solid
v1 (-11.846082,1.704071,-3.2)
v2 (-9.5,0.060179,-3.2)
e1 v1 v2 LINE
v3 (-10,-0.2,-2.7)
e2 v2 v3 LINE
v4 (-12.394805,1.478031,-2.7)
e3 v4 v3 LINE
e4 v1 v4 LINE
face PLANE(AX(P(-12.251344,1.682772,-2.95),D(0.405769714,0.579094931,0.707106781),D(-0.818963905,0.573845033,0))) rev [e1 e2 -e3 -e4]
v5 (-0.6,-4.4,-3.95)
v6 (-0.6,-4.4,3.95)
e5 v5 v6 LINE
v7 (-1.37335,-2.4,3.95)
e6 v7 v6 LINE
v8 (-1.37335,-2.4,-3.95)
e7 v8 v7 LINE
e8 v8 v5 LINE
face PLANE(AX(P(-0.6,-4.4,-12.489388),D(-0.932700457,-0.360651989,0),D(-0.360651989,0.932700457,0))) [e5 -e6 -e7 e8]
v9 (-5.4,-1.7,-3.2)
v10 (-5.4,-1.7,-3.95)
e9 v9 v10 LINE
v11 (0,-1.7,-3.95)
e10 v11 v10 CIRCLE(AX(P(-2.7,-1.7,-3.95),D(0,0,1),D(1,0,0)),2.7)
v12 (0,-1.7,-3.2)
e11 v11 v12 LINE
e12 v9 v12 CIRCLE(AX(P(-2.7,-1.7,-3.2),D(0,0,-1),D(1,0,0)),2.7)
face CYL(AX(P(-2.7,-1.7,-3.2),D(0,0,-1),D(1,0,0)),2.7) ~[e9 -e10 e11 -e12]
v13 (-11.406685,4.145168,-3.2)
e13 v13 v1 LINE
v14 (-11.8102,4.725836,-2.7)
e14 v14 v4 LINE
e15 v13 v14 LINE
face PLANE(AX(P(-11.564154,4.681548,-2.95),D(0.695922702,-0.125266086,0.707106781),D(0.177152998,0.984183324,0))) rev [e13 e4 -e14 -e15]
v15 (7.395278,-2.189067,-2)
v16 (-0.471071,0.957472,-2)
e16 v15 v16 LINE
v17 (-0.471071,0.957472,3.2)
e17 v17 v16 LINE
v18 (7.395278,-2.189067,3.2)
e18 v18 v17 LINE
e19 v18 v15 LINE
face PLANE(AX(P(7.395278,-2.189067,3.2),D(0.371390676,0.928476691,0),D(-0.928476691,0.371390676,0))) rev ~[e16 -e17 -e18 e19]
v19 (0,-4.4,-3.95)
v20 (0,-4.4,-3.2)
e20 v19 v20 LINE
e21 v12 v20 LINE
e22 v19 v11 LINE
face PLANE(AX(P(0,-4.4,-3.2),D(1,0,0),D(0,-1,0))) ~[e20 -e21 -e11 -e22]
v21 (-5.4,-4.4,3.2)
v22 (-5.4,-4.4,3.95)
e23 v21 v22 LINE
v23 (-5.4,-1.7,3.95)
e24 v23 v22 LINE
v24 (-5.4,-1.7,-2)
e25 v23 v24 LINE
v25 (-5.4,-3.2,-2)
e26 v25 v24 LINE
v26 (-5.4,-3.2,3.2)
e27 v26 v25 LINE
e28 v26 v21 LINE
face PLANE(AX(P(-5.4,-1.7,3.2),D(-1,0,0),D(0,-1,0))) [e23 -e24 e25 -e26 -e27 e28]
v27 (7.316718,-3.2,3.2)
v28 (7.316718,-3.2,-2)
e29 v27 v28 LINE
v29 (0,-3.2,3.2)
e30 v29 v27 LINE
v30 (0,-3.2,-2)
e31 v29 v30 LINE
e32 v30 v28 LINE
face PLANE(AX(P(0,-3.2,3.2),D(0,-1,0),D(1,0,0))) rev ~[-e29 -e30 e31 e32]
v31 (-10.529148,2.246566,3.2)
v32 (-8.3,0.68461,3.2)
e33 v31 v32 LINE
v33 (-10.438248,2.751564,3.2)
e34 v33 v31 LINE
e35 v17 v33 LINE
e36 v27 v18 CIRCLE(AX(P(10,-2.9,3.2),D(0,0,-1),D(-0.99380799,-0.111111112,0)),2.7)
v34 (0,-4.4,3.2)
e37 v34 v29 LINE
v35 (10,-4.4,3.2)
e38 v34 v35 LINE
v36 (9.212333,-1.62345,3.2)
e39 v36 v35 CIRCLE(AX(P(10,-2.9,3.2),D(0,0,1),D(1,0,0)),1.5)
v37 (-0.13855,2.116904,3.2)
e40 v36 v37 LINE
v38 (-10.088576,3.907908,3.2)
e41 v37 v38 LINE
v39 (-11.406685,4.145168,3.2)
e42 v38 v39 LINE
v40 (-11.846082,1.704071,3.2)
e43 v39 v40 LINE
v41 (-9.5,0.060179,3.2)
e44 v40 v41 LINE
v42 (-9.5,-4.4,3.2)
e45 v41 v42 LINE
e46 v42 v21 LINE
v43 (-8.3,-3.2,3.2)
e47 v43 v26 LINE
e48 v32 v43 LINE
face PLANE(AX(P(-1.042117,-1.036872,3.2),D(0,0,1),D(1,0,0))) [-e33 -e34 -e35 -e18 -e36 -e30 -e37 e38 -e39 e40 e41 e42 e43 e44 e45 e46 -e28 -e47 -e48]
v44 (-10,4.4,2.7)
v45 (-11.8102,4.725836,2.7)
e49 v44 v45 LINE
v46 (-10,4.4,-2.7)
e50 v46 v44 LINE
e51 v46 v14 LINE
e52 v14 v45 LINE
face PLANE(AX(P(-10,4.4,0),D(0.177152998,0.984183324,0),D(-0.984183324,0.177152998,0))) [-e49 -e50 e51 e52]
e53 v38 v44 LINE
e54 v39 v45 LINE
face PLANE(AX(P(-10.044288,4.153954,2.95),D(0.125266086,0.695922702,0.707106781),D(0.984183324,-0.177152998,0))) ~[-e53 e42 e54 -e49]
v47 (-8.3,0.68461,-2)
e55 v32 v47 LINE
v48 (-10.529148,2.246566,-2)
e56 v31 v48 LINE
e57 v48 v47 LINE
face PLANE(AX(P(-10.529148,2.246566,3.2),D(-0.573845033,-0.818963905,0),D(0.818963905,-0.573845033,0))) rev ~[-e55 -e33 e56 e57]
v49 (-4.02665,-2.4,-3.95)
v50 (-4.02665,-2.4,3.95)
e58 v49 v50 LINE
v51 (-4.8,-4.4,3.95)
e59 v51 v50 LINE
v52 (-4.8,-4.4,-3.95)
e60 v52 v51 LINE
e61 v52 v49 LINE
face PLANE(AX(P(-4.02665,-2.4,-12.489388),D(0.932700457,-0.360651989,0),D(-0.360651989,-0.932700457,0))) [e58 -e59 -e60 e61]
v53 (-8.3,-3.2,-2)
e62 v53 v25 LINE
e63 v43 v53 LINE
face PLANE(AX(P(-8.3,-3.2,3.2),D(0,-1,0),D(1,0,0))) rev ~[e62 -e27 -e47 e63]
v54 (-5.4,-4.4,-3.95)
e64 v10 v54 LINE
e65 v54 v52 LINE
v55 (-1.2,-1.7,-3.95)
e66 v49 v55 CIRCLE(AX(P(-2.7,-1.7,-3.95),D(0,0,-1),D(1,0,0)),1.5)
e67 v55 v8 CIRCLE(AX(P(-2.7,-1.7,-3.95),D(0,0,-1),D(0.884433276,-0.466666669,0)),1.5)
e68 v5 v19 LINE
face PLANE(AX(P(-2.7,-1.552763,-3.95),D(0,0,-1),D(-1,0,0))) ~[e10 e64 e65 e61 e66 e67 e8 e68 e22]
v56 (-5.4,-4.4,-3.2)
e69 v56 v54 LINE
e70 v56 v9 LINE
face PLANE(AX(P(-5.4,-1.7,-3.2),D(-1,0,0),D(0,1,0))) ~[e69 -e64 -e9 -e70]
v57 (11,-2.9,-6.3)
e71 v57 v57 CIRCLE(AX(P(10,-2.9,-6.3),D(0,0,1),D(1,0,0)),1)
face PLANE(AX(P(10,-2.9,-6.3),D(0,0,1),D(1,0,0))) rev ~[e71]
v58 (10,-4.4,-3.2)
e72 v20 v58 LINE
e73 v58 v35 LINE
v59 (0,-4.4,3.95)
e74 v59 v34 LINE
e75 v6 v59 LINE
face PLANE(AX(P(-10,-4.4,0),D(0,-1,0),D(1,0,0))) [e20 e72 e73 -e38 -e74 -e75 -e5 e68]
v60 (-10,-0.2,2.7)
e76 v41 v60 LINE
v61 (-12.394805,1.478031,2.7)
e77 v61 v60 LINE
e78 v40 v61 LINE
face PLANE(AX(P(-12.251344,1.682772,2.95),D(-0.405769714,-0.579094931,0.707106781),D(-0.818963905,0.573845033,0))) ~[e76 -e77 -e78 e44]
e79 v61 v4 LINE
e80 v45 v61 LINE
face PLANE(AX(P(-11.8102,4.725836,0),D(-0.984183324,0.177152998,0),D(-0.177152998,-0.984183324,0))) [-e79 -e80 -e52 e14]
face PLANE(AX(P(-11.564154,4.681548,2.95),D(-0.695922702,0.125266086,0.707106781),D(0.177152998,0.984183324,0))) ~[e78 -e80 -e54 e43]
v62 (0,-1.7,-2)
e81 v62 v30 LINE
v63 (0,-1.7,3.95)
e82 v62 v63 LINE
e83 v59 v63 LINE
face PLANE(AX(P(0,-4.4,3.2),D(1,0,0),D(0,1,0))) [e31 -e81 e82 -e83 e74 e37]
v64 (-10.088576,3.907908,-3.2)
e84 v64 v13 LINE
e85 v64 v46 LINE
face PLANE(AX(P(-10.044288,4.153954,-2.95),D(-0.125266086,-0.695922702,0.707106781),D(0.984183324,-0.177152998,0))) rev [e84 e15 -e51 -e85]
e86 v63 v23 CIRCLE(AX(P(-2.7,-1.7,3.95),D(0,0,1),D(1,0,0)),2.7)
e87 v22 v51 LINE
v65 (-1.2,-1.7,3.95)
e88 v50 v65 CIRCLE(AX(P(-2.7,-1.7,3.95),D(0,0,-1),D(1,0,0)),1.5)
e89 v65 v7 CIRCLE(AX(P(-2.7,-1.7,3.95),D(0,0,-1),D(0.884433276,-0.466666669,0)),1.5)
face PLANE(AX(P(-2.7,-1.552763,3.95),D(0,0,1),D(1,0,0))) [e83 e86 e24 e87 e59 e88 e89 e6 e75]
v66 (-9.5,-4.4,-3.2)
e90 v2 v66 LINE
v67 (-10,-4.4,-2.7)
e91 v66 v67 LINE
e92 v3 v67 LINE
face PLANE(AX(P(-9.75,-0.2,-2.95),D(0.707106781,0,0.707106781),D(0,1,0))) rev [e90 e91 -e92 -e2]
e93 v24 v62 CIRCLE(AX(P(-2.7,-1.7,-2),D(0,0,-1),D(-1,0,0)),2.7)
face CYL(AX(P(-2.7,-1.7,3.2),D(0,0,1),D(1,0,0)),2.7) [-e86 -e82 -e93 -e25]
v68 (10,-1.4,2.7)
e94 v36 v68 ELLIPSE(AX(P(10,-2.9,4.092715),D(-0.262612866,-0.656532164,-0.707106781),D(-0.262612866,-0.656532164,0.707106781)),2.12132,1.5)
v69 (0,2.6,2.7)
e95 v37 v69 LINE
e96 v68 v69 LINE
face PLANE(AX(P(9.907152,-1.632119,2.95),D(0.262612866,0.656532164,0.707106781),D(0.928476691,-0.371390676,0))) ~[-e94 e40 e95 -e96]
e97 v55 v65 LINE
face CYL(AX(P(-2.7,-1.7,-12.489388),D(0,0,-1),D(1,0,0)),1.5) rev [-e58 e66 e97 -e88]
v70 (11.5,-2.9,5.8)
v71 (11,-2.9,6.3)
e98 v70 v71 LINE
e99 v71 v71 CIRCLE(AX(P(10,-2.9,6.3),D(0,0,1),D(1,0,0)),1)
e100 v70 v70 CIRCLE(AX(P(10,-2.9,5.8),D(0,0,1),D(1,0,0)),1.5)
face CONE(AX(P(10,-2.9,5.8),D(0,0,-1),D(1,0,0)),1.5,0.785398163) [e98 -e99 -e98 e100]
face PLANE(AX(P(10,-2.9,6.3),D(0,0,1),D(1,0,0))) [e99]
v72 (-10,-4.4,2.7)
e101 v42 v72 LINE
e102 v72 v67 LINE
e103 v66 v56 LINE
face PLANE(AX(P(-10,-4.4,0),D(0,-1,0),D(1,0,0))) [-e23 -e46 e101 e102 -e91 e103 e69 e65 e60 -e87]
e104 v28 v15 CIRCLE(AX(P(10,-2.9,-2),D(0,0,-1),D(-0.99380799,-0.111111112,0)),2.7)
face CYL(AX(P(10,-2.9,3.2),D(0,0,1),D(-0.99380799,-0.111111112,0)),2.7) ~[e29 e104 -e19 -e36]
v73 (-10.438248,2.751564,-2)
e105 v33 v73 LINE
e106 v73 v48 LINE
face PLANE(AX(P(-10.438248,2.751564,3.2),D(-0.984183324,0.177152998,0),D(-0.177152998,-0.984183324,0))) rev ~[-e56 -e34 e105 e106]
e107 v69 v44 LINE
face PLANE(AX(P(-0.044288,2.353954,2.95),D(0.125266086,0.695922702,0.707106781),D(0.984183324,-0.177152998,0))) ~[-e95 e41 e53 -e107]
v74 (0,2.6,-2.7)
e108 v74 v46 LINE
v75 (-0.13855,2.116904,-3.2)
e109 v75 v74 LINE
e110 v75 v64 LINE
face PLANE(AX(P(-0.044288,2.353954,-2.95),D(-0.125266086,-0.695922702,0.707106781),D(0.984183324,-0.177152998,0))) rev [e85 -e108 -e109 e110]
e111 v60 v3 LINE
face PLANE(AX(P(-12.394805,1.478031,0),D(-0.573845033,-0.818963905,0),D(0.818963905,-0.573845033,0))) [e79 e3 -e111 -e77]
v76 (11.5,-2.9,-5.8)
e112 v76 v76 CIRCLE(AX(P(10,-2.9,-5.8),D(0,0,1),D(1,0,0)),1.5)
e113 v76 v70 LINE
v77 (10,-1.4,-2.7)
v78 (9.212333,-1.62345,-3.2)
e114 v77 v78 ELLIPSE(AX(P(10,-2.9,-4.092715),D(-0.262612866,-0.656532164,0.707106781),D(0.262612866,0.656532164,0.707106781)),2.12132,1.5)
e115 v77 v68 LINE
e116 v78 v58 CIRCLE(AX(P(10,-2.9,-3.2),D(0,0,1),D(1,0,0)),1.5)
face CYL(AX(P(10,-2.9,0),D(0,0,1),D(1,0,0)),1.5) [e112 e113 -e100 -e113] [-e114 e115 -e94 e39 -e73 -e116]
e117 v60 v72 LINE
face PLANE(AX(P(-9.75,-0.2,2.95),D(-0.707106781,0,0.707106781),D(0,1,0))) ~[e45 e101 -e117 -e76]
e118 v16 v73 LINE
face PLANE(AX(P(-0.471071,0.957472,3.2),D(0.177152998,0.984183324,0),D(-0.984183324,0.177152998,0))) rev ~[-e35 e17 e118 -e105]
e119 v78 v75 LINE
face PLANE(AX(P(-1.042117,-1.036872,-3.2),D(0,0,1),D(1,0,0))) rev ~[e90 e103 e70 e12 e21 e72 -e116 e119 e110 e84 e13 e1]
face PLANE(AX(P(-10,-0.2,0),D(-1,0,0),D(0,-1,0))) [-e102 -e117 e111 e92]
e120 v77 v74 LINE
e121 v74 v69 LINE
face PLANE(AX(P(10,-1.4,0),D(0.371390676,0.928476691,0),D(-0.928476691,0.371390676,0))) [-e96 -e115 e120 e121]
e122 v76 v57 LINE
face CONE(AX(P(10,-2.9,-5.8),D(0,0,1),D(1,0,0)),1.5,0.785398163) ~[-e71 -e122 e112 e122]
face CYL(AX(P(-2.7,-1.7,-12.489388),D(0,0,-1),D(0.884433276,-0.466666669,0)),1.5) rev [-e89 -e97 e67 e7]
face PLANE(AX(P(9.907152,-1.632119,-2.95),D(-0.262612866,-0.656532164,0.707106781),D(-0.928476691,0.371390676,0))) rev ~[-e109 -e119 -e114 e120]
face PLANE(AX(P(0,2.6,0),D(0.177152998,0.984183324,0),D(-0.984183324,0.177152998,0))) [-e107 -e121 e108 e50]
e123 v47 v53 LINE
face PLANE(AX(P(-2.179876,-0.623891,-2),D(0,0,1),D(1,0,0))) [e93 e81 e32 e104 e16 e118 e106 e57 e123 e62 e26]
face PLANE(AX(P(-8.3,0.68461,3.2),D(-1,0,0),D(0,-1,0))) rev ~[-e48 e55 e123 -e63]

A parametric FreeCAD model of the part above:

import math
import FreeCAD as App
import Part
import Sketcher
Q = App.Units.Quantity


def edges_at(feature, points):
    """Names of the edges that pass closest to the given points."""
    edges = feature.Shape.Edges
    near = lambda p: min(range(len(edges)), key=lambda i: edges[i].distToShape(Part.Vertex(*p))[0])
    return sorted({f"Edge{near(p) + 1}" for p in points})


def add_polygon(sketch, points):
    """Adds a closed chain of lines whose ends are joined by coincident constraints."""
    first, n = sketch.GeometryCount, len(points)
    for a, b in zip(points, points[1:] + points[:1]):
        sketch.addGeometry(Part.LineSegment(App.Vector(*a, 0), App.Vector(*b, 0)), False)
    for i in range(n):
        sketch.addConstraint(Sketcher.Constraint("Coincident", first + i, 2, first + (i + 1) % n, 1))

doc = App.newDocument("Part")
body = doc.addObject("PartDesign::Body", "Body")

sketch1 = body.newObject("Sketcher::SketchObject", "Sketch")
sketch1.AttachmentSupport = (doc.getObject("XY_Plane"), [""])
sketch1.MapMode = "FlatFace"
add_polygon(sketch1, [(-10, -4.4), (10, -4.4), (10, -1.4), (0, 2.6), (-10, 4.4), (-11.8102, 4.725836), (-12.394805, 1.478031), (-10, -0.2)])
sketch1.addConstraint([
    Sketcher.Constraint("Horizontal", 0),
    Sketcher.Constraint("Vertical", 1),
    Sketcher.Constraint("Vertical", 7),
    Sketcher.Constraint("Symmetric", 0, 2, 3, 2, -1, 1),
    Sketcher.Constraint("PointOnObject", 2, 2, -2),
    Sketcher.Constraint("Parallel", 3, 4),
    Sketcher.Constraint("Perpendicular", 4, 5),
    Sketcher.Constraint("Vertical", 3, 2, 6, 2),
    Sketcher.Constraint("DistanceX", 0, 1, 0, 2, Q("20 mm")),
    Sketcher.Constraint("DistanceY", 1, 1, 1, 2, Q("3 mm")),
    Sketcher.Constraint("DistanceY", 7, 2, 7, 1, Q("4.2 mm")),
    Sketcher.Constraint("DistanceY", 1, 2, 2, 2, Q("4 mm")),
    Sketcher.Constraint("Distance", 5, Q("3.3 mm")),
    Sketcher.Constraint("DistanceY", 0, 2, -1, 1, Q("4.4 mm")),
    Sketcher.Constraint("DistanceX", 4, 2, -1, 1, Q("11.8102 mm")),
])
pad1 = body.newObject("PartDesign::Pad", "Pad")
pad1.Profile = sketch1
pad1.Length = 6.4
pad1.Midplane = True

sketch2 = body.newObject("Sketcher::SketchObject", "Sketch001")
sketch2.AttachmentSupport = (doc.getObject("XY_Plane"), [""])
sketch2.MapMode = "FlatFace"
sketch2.AttachmentOffset = App.Placement(App.Vector(0, 0, 3.2), App.Rotation())
sketch2.addGeometry([
    Part.ArcOfCircle(Part.Circle(App.Vector(-2.7, -1.7, 0), App.Vector(0, 0, 1), 2.7), math.radians(0), math.radians(180)),
    Part.LineSegment(App.Vector(-5.4, -1.7, 0), App.Vector(-5.4, -4.4, 0)),
    Part.LineSegment(App.Vector(-5.4, -4.4, 0), App.Vector(0, -4.4, 0)),
    Part.LineSegment(App.Vector(0, -4.4, 0), App.Vector(0, -1.7, 0)),
], False)
sketch2.addConstraint([
    Sketcher.Constraint("Tangent", 0, 2, 1, 1),
    Sketcher.Constraint("Coincident", 1, 2, 2, 1),
    Sketcher.Constraint("Coincident", 2, 2, 3, 1),
    Sketcher.Constraint("Tangent", 3, 2, 0, 1),
    Sketcher.Constraint("Vertical", 1),
    Sketcher.Constraint("Horizontal", 2),
    Sketcher.Constraint("Vertical", 3),
    Sketcher.Constraint("PointOnObject", 2, 2, -2),
    Sketcher.Constraint("Radius", 0, Q("2.7 mm")),
    Sketcher.Constraint("DistanceY", 1, 2, 1, 1, Q("2.7 mm")),
    Sketcher.Constraint("DistanceY", 0, 3, -1, 1, Q("1.7 mm")),
])
pad2 = body.newObject("PartDesign::Pad", "Pad001")
pad2.Profile = sketch2
pad2.Length = 1.5
pad2.Midplane = True
doc.recompute()

mirrored = body.newObject("PartDesign::Mirrored", "Mirrored")
mirrored.Originals = [pad2]
mirrored.MirrorPlane = (doc.getObject("XY_Plane"), [""])
body.Tip = mirrored

sketch3 = body.newObject("Sketcher::SketchObject", "Sketch002")
sketch3.AttachmentSupport = (doc.getObject("XY_Plane"), [""])
sketch3.MapMode = "FlatFace"
sketch3.AttachmentOffset = App.Placement(App.Vector(0, 0, 3.95), App.Rotation())
sketch3.addGeometry([
    Part.ArcOfCircle(Part.Circle(App.Vector(-2.7, -1.7, 0), App.Vector(0, 0, 1), 1.5), math.radians(0), math.radians(207.818139)),
    Part.LineSegment(App.Vector(-4.02665, -2.4, 0), App.Vector(-4.8, -4.4, 0)),
    Part.LineSegment(App.Vector(-4.8, -4.4, 0), App.Vector(-0.6, -4.4, 0)),
    Part.LineSegment(App.Vector(-0.6, -4.4, 0), App.Vector(-1.37335, -2.4, 0)),
    Part.ArcOfCircle(Part.Circle(App.Vector(-2.7, -1.7, 0), App.Vector(0, 0, 1), 1.5), math.radians(-27.818139), math.radians(0)),
], False)
sketch3.addConstraint([
    Sketcher.Constraint("Coincident", 0, 2, 1, 1),
    Sketcher.Constraint("Coincident", 1, 2, 2, 1),
    Sketcher.Constraint("Coincident", 2, 2, 3, 1),
    Sketcher.Constraint("Coincident", 3, 2, 4, 1),
    Sketcher.Constraint("Tangent", 4, 2, 0, 1),
    Sketcher.Constraint("Horizontal", 2),
    Sketcher.Constraint("Equal", 0, 4),
    Sketcher.Constraint("Horizontal", 0, 2, 3, 2),
    Sketcher.Constraint("Horizontal", 0, 3, 4, 2),
    Sketcher.Constraint("Equal", 1, 3),
    Sketcher.Constraint("Radius", 0, Q("1.5 mm")),
    Sketcher.Constraint("DistanceX", 2, 1, 2, 2, Q("4.2 mm")),
    Sketcher.Constraint("DistanceY", 1, 2, 0, 2, Q("2 mm")),
    Sketcher.Constraint("DistanceX", 0, 3, -1, 1, Q("2.7 mm")),
    Sketcher.Constraint("DistanceY", 0, 3, -1, 1, Q("1.7 mm")),
    Sketcher.Constraint("DistanceY", 0, 2, -1, 1, Q("2.4 mm")),
])
pocket1 = body.newObject("PartDesign::Pocket", "Pocket")
pocket1.Profile = sketch3
pocket1.Type = "ThroughAll"
pocket1.Midplane = True

sketch4 = body.newObject("Sketcher::SketchObject", "Sketch003")
sketch4.AttachmentSupport = (doc.getObject("XY_Plane"), [""])
sketch4.MapMode = "FlatFace"
sketch4.addGeometry(Part.Circle(App.Vector(10, -2.9, 0), App.Vector(0, 0, 1), 1.5), False)
sketch4.addConstraint([
    Sketcher.Constraint("Diameter", 0, Q("3 mm")),
    Sketcher.Constraint("DistanceX", -1, 1, 0, 3, Q("10 mm")),
    Sketcher.Constraint("DistanceY", 0, 3, -1, 1, Q("2.9 mm")),
])
pad3 = body.newObject("PartDesign::Pad", "Pad002")
pad3.Profile = sketch4
pad3.Length = 12.6
pad3.Midplane = True
doc.recompute()

chamfer = body.newObject("PartDesign::Chamfer", "Chamfer")
chamfer.Base = (pad3, edges_at(pad3, [(8.5, -2.9, -6.3), (8.5, -2.9, 6.3)]))
chamfer.Size = 0.5
doc.recompute()

chamfer2 = body.newObject("PartDesign::Chamfer", "Chamfer001")
chamfer2.Base = (chamfer, edges_at(chamfer, [
    (-5, 3.5, 3.2),
    (-11.197, 0.639, -3.2),
    (-12.103, 3.102, -3.2),
    (-5, 3.5, -3.2),
    (5, 0.6, -3.2),
    (-12.103, 3.102, 3.2),
    (-11.197, 0.639, 3.2),
    (-10, -2.3, 3.2),
    (5, 0.6, 3.2),
    (-10, -2.3, -3.2),
]))
chamfer2.Size = 0.5

sketch5 = body.newObject("Sketcher::SketchObject", "Sketch004")
sketch5.AttachmentSupport = (doc.getObject("XY_Plane"), [""])
sketch5.MapMode = "FlatFace"
sketch5.AttachmentOffset = App.Placement(App.Vector(0, 0, 3.2), App.Rotation())
sketch5.addGeometry([
    Part.LineSegment(App.Vector(-10.438248, 2.751564, 0), App.Vector(-10.529148, 2.246566, 0)),
    Part.LineSegment(App.Vector(-10.529148, 2.246566, 0), App.Vector(-8.3, 0.68461, 0)),
    Part.LineSegment(App.Vector(-8.3, 0.68461, 0), App.Vector(-8.3, -3.2, 0)),
    Part.LineSegment(App.Vector(-8.3, -3.2, 0), App.Vector(-5.4, -3.2, 0)),
    Part.LineSegment(App.Vector(-5.4, -3.2, 0), App.Vector(-5.4, -1.7, 0)),
    Part.ArcOfCircle(Part.Circle(App.Vector(-2.7, -1.7, 0), App.Vector(0, 0, 1), 2.7), math.radians(0), math.radians(180)),
    Part.LineSegment(App.Vector(0, -1.7, 0), App.Vector(0, -3.2, 0)),
    Part.LineSegment(App.Vector(0, -3.2, 0), App.Vector(7.316718, -3.2, 0)),
    Part.ArcOfCircle(Part.Circle(App.Vector(10, -2.9, 0), App.Vector(0, 0, 1), 2.7), math.radians(164.733539), math.radians(186.37937)),
    Part.LineSegment(App.Vector(7.395278, -2.189067, 0), App.Vector(-0.471071, 0.957472, 0)),
    Part.LineSegment(App.Vector(-0.471071, 0.957472, 0), App.Vector(-10.438248, 2.751564, 0)),
], False)
sketch5.addConstraint([
    Sketcher.Constraint("Coincident", 0, 2, 1, 1),
    Sketcher.Constraint("Coincident", 1, 2, 2, 1),
    Sketcher.Constraint("Coincident", 2, 2, 3, 1),
    Sketcher.Constraint("Coincident", 3, 2, 4, 1),
    Sketcher.Constraint("Tangent", 4, 2, 5, 2),
    Sketcher.Constraint("Tangent", 5, 1, 6, 1),
    Sketcher.Constraint("Coincident", 6, 2, 7, 1),
    Sketcher.Constraint("Coincident", 7, 2, 8, 2),
    Sketcher.Constraint("Coincident", 8, 1, 9, 1),
    Sketcher.Constraint("Coincident", 9, 2, 10, 1),
    Sketcher.Constraint("Coincident", 10, 2, 0, 1),
    Sketcher.Constraint("Vertical", 2),
    Sketcher.Constraint("Horizontal", 3),
    Sketcher.Constraint("Vertical", 4),
    Sketcher.Constraint("Vertical", 6),
    Sketcher.Constraint("Horizontal", 7),
    Sketcher.Constraint("Equal", 5, 8),
    Sketcher.Constraint("PointOnObject", 5, 1, -2),
    Sketcher.Constraint("Perpendicular", 0, 10),
    Sketcher.Constraint("Horizontal", 3, 2, 6, 2),
    Sketcher.Constraint("Radius", 5, Q("2.7 mm")),
    Sketcher.Constraint("DistanceX", 3, 1, 3, 2, Q("2.9 mm")),
    Sketcher.Constraint("DistanceY", 4, 1, 4, 2, Q("1.5 mm")),
    Sketcher.Constraint("DistanceX", -1, 1, 8, 3, Q("10 mm")),
    Sketcher.Constraint("DistanceY", 5, 3, -1, 1, Q("1.7 mm")),
    Sketcher.Constraint("DistanceY", 8, 3, -1, 1, Q("2.9 mm")),
    Sketcher.Constraint("DistanceY", 0, 2, 10, 2, Q("0.504999 mm")),
    Sketcher.Constraint("DistanceY", 2, 2, 2, 1, Q("3.88461 mm")),
    Sketcher.Constraint("DistanceX", 0, 2, 10, 2, Q("0.0909 mm")),
    Sketcher.Constraint("Distance", 10, Q("10.127359 mm")),
    Sketcher.Constraint("DistanceX", 0, 2, -1, 1, Q("10.529148 mm")),
    Sketcher.Constraint("DistanceX", -1, 1, 8, 1, Q("7.395278 mm")),
    Sketcher.Constraint("Distance", 1, Q("2.721912 mm")),
])
pocket2 = body.newObject("PartDesign::Pocket", "Pocket001")
pocket2.Profile = sketch5
pocket2.Length = 5.2

doc.recompute()
